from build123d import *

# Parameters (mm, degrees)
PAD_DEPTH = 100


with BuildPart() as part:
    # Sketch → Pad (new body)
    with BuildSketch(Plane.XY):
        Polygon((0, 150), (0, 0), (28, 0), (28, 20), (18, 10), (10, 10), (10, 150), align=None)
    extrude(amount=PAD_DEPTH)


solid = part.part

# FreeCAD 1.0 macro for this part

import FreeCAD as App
import Part
import Sketcher
from FreeCAD import Vector


def add_polygon(sketch, points):
    """Adds a closed chain of lines whose ends are joined by coincident constraints."""
    first, n = sketch.GeometryCount, len(points)
    for a, b in zip(points, points[1:] + points[:1]):
        sketch.addGeometry(Part.LineSegment(App.Vector(*a, 0), App.Vector(*b, 0)), False)
    for i in range(n):
        sketch.addConstraint(Sketcher.Constraint("Coincident", first + i, 2, first + (i + 1) % n, 1))

doc = App.newDocument("Part")
body = doc.addObject("PartDesign::Body", "Body")

# Sketch on XY plane
sketch1 = body.newObject("Sketcher::SketchObject", "Sketch")
sketch1.AttachmentSupport = (doc.getObject("XY_Plane"), [""])
sketch1.MapMode = "FlatFace"
add_polygon(sketch1, [(0, 150), (0, 0), (28, 0), (28, 20), (18, 10), (10, 10), (10, 150)])  # lines 0-6
sketch1.addConstraint([
    Sketcher.Constraint("Vertical", 0),
    Sketcher.Constraint("Horizontal", 1),
    Sketcher.Constraint("Vertical", 2),
    Sketcher.Constraint("Horizontal", 4),
    Sketcher.Constraint("Vertical", 5),
    Sketcher.Constraint("Horizontal", 6),
    Sketcher.Constraint("Coincident", 0, 2, -1, 1),
    Sketcher.Constraint("DistanceX", 1, 1, 1, 2, 28.0),
    Sketcher.Constraint("DistanceX", 4, 2, 4, 1, 8.0),
    Sketcher.Constraint("DistanceX", 6, 2, 6, 1, 10.0),
    Sketcher.Constraint("DistanceY", 0, 2, 0, 1, 150.0),
    Sketcher.Constraint("DistanceY", 2, 1, 2, 2, 20.0),
    Sketcher.Constraint("DistanceY", 5, 1, 5, 2, 140.0),
])
pad1 = body.newObject("PartDesign::Pad", "Pad")
pad1.Profile = sketch1
pad1.Length = 100

doc.recompute()
